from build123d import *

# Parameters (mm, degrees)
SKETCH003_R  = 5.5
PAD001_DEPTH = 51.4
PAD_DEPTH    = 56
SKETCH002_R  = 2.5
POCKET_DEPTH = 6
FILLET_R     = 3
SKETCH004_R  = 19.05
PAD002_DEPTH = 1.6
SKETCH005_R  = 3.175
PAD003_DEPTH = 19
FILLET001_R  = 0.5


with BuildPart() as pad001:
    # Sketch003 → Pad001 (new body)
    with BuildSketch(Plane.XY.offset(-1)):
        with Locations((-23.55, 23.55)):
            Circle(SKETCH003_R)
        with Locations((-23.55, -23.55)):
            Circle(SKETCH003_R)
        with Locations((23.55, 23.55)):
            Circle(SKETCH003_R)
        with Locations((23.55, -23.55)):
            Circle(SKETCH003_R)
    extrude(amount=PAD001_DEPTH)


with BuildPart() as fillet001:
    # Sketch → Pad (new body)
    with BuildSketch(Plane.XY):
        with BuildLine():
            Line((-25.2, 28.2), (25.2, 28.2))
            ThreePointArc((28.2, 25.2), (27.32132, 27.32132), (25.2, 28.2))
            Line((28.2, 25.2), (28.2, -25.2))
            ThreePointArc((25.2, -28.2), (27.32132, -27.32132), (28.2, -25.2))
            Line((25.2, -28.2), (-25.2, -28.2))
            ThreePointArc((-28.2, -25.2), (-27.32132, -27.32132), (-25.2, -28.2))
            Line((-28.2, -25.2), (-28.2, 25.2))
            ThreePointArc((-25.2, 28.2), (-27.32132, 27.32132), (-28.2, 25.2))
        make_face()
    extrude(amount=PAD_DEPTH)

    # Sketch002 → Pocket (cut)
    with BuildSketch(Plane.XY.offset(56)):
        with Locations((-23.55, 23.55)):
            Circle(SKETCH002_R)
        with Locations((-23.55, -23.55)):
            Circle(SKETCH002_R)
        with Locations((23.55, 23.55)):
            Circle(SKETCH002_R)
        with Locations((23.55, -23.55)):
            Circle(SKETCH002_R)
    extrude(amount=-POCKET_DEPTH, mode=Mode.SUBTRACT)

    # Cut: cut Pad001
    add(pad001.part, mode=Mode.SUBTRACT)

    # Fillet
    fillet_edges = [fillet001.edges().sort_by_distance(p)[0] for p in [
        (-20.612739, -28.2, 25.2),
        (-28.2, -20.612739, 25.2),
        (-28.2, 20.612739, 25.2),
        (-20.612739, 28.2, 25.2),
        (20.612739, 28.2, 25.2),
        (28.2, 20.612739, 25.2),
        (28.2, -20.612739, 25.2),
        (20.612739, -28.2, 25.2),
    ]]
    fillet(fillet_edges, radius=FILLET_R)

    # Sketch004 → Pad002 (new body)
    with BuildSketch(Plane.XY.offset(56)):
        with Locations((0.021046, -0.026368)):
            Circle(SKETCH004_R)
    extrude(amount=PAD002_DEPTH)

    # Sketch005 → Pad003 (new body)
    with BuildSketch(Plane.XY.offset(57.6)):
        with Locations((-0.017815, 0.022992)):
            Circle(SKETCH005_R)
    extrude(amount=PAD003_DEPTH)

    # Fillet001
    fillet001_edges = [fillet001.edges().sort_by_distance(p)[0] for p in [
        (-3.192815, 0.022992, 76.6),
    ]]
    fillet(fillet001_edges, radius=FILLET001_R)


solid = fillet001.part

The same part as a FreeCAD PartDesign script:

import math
import FreeCAD as App
import Part
import Sketcher
from FreeCAD import Vector
Q = App.Units.Quantity


def edges_at(feature, points):
    """Names of the edges that pass closest to the given points."""
    edges = feature.Shape.Edges
    near = lambda p: min(range(len(edges)), key=lambda i: edges[i].distToShape(Part.Vertex(*p))[0])
    return sorted({f"Edge{near(p) + 1}" for p in points})

doc = App.newDocument("Part")
body = doc.addObject("PartDesign::Body", "Body")
body.AllowCompound = True

sketch1 = doc.addObject("Sketcher::SketchObject", "Sketch")
body.addObject(sketch1)
sketch1.AttachmentSupport = (doc.XY_Plane, [""])
sketch1.MapMode = "FlatFace"
sketch1.AttachmentOffset = App.Placement(Vector(0, 0, -1), App.Rotation())
sketch1.addGeometry([
    Part.Circle(Vector(-24, 24, 0), Vector(0, 0, 1), 6),
    Part.Circle(Vector(-24, -24, 0), Vector(0, 0, 1), 6),
    Part.Circle(Vector(24, 24, 0), Vector(0, 0, 1), 6),
    Part.Circle(Vector(24, -24, 0), Vector(0, 0, 1), 6),
], False)
sketch1.addConstraint([
    Sketcher.Constraint("Equal", 0, 1),
    Sketcher.Constraint("Equal", 1, 2),
    Sketcher.Constraint("Equal", 2, 3),
    Sketcher.Constraint("Symmetric", 1, 3, 2, 3, -1, 1),
    Sketcher.Constraint("Symmetric", 0, 3, 3, 3, -1, 1),
    Sketcher.Constraint("Symmetric", 0, 3, 2, 3, -2),
    Sketcher.Constraint("Diameter", 0, Q("11 mm")),
    Sketcher.Constraint("DistanceY", 1, 3, 0, 3, Q("47.1 mm")),
    Sketcher.Constraint("DistanceX", 0, 3, 2, 3, Q("47.1 mm")),
])
pad1 = doc.addObject("PartDesign::Pad", "Pad")
body.addObject(pad1)
pad1.Profile = sketch1
pad1.Length = 51.4
body2 = doc.addObject("PartDesign::Body", "Body001")

sketch2 = doc.addObject("Sketcher::SketchObject", "Sketch001")
body2.addObject(sketch2)
sketch2.AttachmentSupport = (doc.getObject("XY_Plane001"), [""])
sketch2.MapMode = "FlatFace"
sketch2.addGeometry([
    Part.LineSegment(Vector(25.2, 28.2, 0), Vector(-25.2, 28.2, 0)),
    Part.ArcOfCircle(Part.Circle(Vector(-25.2, 25.2, 0), Vector(0, 0, 1), 3), math.radians(90), math.radians(180)),
    Part.LineSegment(Vector(-28.2, 25.2, 0), Vector(-28.2, -25.2, 0)),
    Part.ArcOfCircle(Part.Circle(Vector(-25.2, -25.2, 0), Vector(0, 0, 1), 3), math.radians(-180), math.radians(-90)),
    Part.LineSegment(Vector(-25.2, -28.2, 0), Vector(25.2, -28.2, 0)),
    Part.ArcOfCircle(Part.Circle(Vector(25.2, -25.2, 0), Vector(0, 0, 1), 3), math.radians(-90), math.radians(0)),
    Part.LineSegment(Vector(28.2, -25.2, 0), Vector(28.2, 25.2, 0)),
    Part.ArcOfCircle(Part.Circle(Vector(25.2, 25.2, 0), Vector(0, 0, 1), 3), math.radians(0), math.radians(90)),
], False)
sketch2.addConstraint([
    Sketcher.Constraint("Tangent", 0, 2, 1, 1),
    Sketcher.Constraint("Tangent", 1, 2, 2, 1),
    Sketcher.Constraint("Tangent", 2, 2, 3, 1),
    Sketcher.Constraint("Tangent", 3, 2, 4, 1),
    Sketcher.Constraint("Tangent", 4, 2, 5, 1),
    Sketcher.Constraint("Tangent", 5, 2, 6, 1),
    Sketcher.Constraint("Tangent", 6, 2, 7, 1),
    Sketcher.Constraint("Tangent", 7, 2, 0, 1),
    Sketcher.Constraint("Horizontal", 0),
    Sketcher.Constraint("Vertical", 2),
    Sketcher.Constraint("Horizontal", 4),
    Sketcher.Constraint("Vertical", 6),
    Sketcher.Constraint("Equal", 1, 3),
    Sketcher.Constraint("Equal", 3, 5),
    Sketcher.Constraint("Equal", 5, 7),
    Sketcher.Constraint("Symmetric", 1, 3, 5, 3, -1, 1),
    Sketcher.Constraint("Equal", 4, 2),
    Sketcher.Constraint("Radius", 1, Q("3.000001 mm")),
    Sketcher.Constraint("DistanceX", 0, 2, 0, 1, Q("50.4 mm")),
])
pad2 = doc.addObject("PartDesign::Pad", "Pad001")
body2.addObject(pad2)
pad2.Profile = sketch2
pad2.Length = 56

sketch3 = doc.addObject("Sketcher::SketchObject", "Sketch002")
body2.addObject(sketch3)
sketch3.AttachmentSupport = (doc.getObject("XY_Plane001"), [""])
sketch3.MapMode = "FlatFace"
sketch3.AttachmentOffset = App.Placement(Vector(0, 0, 56), App.Rotation())
sketch3.addGeometry([
    Part.Circle(Vector(-23.6, 23.6, 0), Vector(0, 0, 1), 2.5),
    Part.Circle(Vector(-23.6, -23.6, 0), Vector(0, 0, 1), 2.5),
    Part.Circle(Vector(23.6, 23.6, 0), Vector(0, 0, 1), 2.5),
    Part.Circle(Vector(23.6, -23.6, 0), Vector(0, 0, 1), 2.5),
], False)
sketch3.addConstraint([
    Sketcher.Constraint("Equal", 0, 1),
    Sketcher.Constraint("Equal", 1, 2),
    Sketcher.Constraint("Equal", 2, 3),
    Sketcher.Constraint("Symmetric", 1, 3, 2, 3, -1, 1),
    Sketcher.Constraint("Symmetric", 0, 3, 3, 3, -1, 1),
    Sketcher.Constraint("Symmetric", 0, 3, 2, 3, -2),
    Sketcher.Constraint("Diameter", 0, Q("5 mm")),
    Sketcher.Constraint("DistanceY", 1, 3, 0, 3, Q("47.1 mm")),
    Sketcher.Constraint("DistanceX", 0, 3, 2, 3, Q("47.1 mm")),
])
pocket1 = doc.addObject("PartDesign::Pocket", "Pocket")
body2.addObject(pocket1)
pocket1.Profile = sketch3
pocket1.Length = 6
doc.recompute()

boolean = doc.addObject("PartDesign::Boolean", "Boolean")
body2.addObject(boolean)
boolean.Type = "Cut"
boolean.addObjects([body])
doc.recompute()

fillet = doc.addObject("PartDesign::Fillet", "Fillet")
body2.addObject(fillet)
fillet.Base = (boolean, edges_at(boolean, [
    (-20.613, -28.2, 25.2),
    (-28.2, -20.613, 25.2),
    (-28.2, 20.613, 25.2),
    (-20.613, 28.2, 25.2),
    (20.613, 28.2, 25.2),
    (28.2, 20.613, 25.2),
    (28.2, -20.613, 25.2),
    (20.613, -28.2, 25.2),
]))
fillet.Radius = 3

sketch4 = doc.addObject("Sketcher::SketchObject", "Sketch003")
body2.addObject(sketch4)
sketch4.AttachmentSupport = (doc.getObject("XY_Plane001"), [""])
sketch4.MapMode = "FlatFace"
sketch4.AttachmentOffset = App.Placement(Vector(0, 0, 56), App.Rotation())
sketch4.addGeometry(Part.Circle(Vector(0, 0, 0), Vector(0, 0, 1), 19), False)
sketch4.addConstraint([
    Sketcher.Constraint("Diameter", 0, Q("38.1 mm")),
    Sketcher.Constraint("DistanceX", -1, 1, 0, 3, Q("0.021046 mm")),
    Sketcher.Constraint("DistanceY", 0, 3, -1, 1, Q("0.026368 mm")),
])
pad3 = doc.addObject("PartDesign::Pad", "Pad002")
body2.addObject(pad3)
pad3.Profile = sketch4
pad3.Length = 1.6

sketch5 = doc.addObject("Sketcher::SketchObject", "Sketch004")
body2.addObject(sketch5)
sketch5.AttachmentSupport = (doc.getObject("XY_Plane001"), [""])
sketch5.MapMode = "FlatFace"
sketch5.AttachmentOffset = App.Placement(Vector(0, 0, 57.6), App.Rotation())
sketch5.addGeometry(Part.Circle(Vector(0, 0, 0), Vector(0, 0, 1), 3.2), False)
sketch5.addConstraint([
    Sketcher.Constraint("Diameter", 0, Q("6.35 mm")),
    Sketcher.Constraint("DistanceY", -1, 1, 0, 3, Q("0.022992 mm")),
    Sketcher.Constraint("DistanceX", 0, 3, -1, 1, Q("0.017815 mm")),
])
pad4 = doc.addObject("PartDesign::Pad", "Pad003")
body2.addObject(pad4)
pad4.Profile = sketch5
pad4.Length = 19
doc.recompute()

fillet2 = doc.addObject("PartDesign::Fillet", "Fillet001")
body2.addObject(fillet2)
fillet2.Base = (pad4, edges_at(pad4, [(-3.193, 0.023, 76.6)]))
fillet2.Radius = 0.5

doc.recompute()
